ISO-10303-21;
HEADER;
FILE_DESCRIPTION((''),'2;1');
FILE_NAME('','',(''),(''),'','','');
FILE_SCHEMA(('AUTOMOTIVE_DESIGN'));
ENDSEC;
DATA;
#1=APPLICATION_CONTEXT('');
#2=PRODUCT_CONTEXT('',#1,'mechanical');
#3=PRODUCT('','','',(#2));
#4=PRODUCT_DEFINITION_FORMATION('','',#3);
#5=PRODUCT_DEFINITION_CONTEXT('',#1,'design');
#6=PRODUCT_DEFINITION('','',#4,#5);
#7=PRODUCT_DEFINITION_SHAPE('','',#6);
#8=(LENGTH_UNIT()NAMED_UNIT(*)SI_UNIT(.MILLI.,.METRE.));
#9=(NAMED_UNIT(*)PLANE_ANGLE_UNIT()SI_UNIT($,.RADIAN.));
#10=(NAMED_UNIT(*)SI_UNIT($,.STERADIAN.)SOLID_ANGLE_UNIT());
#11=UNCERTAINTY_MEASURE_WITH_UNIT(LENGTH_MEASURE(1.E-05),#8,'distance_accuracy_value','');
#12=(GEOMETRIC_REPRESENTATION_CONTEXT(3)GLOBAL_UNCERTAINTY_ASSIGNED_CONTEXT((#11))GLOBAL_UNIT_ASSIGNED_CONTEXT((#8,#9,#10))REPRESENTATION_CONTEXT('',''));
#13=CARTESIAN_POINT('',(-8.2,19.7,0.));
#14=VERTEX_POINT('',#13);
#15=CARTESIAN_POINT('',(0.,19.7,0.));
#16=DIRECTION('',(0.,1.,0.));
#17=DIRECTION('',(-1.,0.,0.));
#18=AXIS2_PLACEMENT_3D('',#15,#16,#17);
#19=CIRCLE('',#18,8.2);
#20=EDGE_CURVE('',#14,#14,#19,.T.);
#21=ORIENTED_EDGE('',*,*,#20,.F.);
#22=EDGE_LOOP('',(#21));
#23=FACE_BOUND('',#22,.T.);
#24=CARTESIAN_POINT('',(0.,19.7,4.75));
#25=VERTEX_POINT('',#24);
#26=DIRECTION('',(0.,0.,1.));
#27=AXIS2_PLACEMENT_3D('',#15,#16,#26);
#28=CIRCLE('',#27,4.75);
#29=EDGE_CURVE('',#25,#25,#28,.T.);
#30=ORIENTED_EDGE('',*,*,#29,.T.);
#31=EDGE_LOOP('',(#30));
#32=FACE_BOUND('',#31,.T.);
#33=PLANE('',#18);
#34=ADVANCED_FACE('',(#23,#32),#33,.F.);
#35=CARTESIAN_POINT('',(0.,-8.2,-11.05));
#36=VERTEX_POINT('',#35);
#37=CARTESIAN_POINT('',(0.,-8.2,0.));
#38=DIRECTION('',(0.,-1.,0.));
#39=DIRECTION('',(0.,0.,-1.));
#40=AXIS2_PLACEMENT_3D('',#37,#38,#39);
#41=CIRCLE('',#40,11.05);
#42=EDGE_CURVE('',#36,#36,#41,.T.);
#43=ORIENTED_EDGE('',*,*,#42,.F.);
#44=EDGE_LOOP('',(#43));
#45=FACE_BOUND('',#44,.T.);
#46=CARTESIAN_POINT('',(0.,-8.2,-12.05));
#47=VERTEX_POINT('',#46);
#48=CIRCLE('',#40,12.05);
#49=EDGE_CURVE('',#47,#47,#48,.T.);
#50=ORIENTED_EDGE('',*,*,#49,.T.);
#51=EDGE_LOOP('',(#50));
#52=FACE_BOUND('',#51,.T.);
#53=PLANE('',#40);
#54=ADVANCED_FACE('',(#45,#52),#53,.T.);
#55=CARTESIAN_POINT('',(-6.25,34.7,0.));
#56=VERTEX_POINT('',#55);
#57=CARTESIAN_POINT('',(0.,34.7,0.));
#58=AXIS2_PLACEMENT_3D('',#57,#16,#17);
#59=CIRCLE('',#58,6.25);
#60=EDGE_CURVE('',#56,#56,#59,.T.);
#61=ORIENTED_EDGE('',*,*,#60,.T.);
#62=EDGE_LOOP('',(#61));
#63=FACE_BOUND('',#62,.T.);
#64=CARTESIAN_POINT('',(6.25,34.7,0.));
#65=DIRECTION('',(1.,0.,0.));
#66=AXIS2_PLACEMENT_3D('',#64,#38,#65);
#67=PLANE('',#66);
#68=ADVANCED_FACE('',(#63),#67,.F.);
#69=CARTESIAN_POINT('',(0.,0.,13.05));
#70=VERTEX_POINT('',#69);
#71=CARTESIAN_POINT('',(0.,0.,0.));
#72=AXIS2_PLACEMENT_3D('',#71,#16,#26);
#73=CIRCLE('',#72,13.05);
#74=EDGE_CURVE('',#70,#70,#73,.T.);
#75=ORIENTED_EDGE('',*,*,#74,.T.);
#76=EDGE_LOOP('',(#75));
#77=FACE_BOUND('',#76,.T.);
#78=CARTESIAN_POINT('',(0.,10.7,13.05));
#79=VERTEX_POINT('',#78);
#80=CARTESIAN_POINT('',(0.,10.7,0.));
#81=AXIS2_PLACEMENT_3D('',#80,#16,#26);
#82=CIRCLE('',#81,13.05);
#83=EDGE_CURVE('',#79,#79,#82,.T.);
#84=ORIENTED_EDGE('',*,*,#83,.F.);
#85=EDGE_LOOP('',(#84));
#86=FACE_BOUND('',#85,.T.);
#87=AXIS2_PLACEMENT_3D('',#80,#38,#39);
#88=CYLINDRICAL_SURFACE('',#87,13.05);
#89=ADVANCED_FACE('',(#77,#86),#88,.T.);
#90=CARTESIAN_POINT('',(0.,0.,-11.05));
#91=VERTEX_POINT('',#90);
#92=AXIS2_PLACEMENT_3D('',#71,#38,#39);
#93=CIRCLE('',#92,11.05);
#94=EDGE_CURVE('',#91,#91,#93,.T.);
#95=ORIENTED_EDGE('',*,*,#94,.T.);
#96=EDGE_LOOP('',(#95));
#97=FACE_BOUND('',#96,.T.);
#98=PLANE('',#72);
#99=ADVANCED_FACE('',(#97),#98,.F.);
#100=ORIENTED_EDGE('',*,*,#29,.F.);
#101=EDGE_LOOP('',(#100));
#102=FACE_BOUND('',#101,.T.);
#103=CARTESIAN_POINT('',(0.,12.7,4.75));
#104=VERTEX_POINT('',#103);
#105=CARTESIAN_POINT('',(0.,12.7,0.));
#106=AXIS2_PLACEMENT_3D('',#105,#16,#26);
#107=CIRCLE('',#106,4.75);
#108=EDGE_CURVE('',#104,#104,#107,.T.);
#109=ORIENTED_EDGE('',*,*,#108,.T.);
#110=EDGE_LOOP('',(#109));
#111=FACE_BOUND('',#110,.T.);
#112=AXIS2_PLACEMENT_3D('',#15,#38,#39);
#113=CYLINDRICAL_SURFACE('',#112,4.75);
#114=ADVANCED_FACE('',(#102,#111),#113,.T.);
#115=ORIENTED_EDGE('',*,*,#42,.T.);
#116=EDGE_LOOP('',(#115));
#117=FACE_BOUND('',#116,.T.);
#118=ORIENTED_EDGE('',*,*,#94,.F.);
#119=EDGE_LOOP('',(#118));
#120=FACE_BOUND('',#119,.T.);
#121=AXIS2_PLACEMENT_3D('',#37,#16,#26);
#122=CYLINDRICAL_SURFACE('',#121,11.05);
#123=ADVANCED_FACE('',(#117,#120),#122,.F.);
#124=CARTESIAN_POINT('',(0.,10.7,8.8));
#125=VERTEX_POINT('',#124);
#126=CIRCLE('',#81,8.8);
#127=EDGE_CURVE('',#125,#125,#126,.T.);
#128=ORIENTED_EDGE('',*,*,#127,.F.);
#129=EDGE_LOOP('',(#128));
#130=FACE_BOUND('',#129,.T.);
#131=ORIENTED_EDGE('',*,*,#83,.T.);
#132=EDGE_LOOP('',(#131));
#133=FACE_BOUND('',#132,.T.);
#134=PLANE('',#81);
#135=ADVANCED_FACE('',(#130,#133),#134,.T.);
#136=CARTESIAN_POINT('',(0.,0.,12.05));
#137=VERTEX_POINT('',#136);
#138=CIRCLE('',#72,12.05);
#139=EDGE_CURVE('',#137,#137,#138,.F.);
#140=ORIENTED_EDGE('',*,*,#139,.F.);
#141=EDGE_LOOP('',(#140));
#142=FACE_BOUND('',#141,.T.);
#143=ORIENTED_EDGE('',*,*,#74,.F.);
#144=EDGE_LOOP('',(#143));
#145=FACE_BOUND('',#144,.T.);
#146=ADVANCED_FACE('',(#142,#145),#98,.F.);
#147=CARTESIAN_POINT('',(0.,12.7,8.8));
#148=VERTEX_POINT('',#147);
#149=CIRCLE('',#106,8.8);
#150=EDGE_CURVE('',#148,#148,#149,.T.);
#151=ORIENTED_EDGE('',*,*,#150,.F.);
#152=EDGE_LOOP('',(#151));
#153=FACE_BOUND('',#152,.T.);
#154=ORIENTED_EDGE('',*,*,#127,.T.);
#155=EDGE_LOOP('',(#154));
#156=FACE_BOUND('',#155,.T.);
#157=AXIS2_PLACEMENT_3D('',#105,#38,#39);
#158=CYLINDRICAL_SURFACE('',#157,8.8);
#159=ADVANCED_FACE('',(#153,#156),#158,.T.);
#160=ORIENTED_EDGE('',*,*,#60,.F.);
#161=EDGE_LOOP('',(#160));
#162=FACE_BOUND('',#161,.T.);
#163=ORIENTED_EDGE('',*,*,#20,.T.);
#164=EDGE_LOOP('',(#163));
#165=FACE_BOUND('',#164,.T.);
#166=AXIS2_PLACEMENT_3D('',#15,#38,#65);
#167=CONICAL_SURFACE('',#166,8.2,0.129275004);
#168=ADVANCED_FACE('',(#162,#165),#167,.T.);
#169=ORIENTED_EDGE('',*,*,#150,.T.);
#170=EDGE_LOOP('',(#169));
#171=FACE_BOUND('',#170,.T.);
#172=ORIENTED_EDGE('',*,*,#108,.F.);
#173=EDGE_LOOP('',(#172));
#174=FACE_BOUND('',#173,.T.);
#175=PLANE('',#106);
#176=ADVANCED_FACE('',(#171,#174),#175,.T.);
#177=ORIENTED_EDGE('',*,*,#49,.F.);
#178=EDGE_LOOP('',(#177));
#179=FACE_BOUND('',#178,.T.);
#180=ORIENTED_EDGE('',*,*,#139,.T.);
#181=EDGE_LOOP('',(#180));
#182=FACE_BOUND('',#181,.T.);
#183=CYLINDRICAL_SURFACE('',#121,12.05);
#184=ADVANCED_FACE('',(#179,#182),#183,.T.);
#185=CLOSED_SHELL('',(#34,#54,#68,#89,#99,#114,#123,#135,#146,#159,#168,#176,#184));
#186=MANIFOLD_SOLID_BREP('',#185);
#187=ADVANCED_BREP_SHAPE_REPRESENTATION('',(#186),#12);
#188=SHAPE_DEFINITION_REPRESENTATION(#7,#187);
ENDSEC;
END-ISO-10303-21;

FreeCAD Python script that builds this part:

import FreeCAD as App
import Part
import Sketcher

V = App.Vector
Q = App.Units.Quantity

doc = App.newDocument("Part")
params = doc.addObject("Spreadsheet::Sheet", "Params")
for row, (alias, value) in enumerate([
    ("sketch1_diameter", "26.1 mm"),
    ("pad1_length", "10.7 mm"),
    ("sketch2_diameter", "17.6 mm"),
    ("pad2_length", "2 mm"),
    ("sketch3_diameter", "9.5 mm"),
    ("pad3_length", "7 mm"),
    ("sketch4_diameter", "24.1 mm"),
    ("sketch4_diameter2", "22.1 mm"),
    ("pad4_length", "8.2 mm"),
    ("sketch5_height", "15 mm"),
    ("sketch5_width", "8.2 mm"),
    ("sketch5_width2", "6.25 mm"),
    ("revolution_angle", "360 deg"),
], start=1):
    params.set(f"A{row}", alias)
    params.set(f"B{row}", "=" + value)
    params.setAlias(f"B{row}", alias)

body = doc.addObject("PartDesign::Body", "Body")

# Sketch on XZ plane
sketch1 = doc.addObject("Sketcher::SketchObject", "Sketch")
body.addObject(sketch1)
sketch1.AttachmentSupport = (doc.XZ_Plane, [""])
sketch1.MapMode = "FlatFace"
sketch1.addGeometry(Part.Circle(V(0, 0, 0), V(0, 0, 1), 13), False)
sketch1.addConstraint([
    Sketcher.Constraint("Coincident", 0, 3, -1, 1),
    Sketcher.Constraint("Diameter", 0, Q("26.1 mm")),
])
sketch1.setExpression("Constraints[1]", "Params.sketch1_diameter")
pad1 = doc.addObject("PartDesign::Pad", "Pad")
body.addObject(pad1)
pad1.Profile = sketch1
pad1.setExpression("Length", "Params.pad1_length")
pad1.Reversed = True

# Sketch on XZ plane
sketch2 = doc.addObject("Sketcher::SketchObject", "Sketch001")
body.addObject(sketch2)
sketch2.AttachmentSupport = (doc.XZ_Plane, [""])
sketch2.MapMode = "FlatFace"
sketch2.AttachmentOffset = App.Placement(V(0, 0, -10.7), App.Rotation())
sketch2.addGeometry(Part.Circle(V(0, 0, 0), V(0, 0, 1), 9), False)
sketch2.addConstraint([
    Sketcher.Constraint("Coincident", 0, 3, -1, 1),
    Sketcher.Constraint("Diameter", 0, Q("17.6 mm")),
])
sketch2.setExpression("Constraints[1]", "Params.sketch2_diameter")
pad2 = doc.addObject("PartDesign::Pad", "Pad001")
body.addObject(pad2)
pad2.Profile = sketch2
pad2.setExpression("Length", "Params.pad2_length")
pad2.Reversed = True

# Sketch on XZ plane
sketch3 = doc.addObject("Sketcher::SketchObject", "Sketch002")
body.addObject(sketch3)
sketch3.AttachmentSupport = (doc.XZ_Plane, [""])
sketch3.MapMode = "FlatFace"
sketch3.AttachmentOffset = App.Placement(V(0, 0, -12.7), App.Rotation())
sketch3.addGeometry(Part.Circle(V(0, 0, 0), V(0, 0, 1), 4.8), False)
sketch3.addConstraint([
    Sketcher.Constraint("Coincident", 0, 3, -1, 1),
    Sketcher.Constraint("Diameter", 0, Q("9.5 mm")),
])
sketch3.setExpression("Constraints[1]", "Params.sketch3_diameter")
pad3 = doc.addObject("PartDesign::Pad", "Pad002")
body.addObject(pad3)
pad3.Profile = sketch3
pad3.setExpression("Length", "Params.pad3_length")
pad3.Reversed = True

# Sketch on XZ plane
sketch4 = doc.addObject("Sketcher::SketchObject", "Sketch003")
body.addObject(sketch4)
sketch4.AttachmentSupport = (doc.XZ_Plane, [""])
sketch4.MapMode = "FlatFace"
sketch4.addGeometry([
    Part.Circle(V(0, 0, 0), V(0, 0, 1), 12),
    Part.Circle(V(0, 0, 0), V(0, 0, 1), 11),
], False)
sketch4.addConstraint([
    Sketcher.Constraint("Coincident", 0, 3, -1, 1),
    Sketcher.Constraint("Coincident", 1, 3, -1, 1),
    Sketcher.Constraint("Diameter", 0, Q("24.1 mm")),
    Sketcher.Constraint("Diameter", 1, Q("22.1 mm")),
])
sketch4.setExpression("Constraints[2]", "Params.sketch4_diameter")
sketch4.setExpression("Constraints[3]", "Params.sketch4_diameter2")
pad4 = doc.addObject("PartDesign::Pad", "Pad003")
body.addObject(pad4)
pad4.Profile = sketch4
pad4.setExpression("Length", "Params.pad4_length")

# Sketch on XY plane
sketch5 = doc.addObject("Sketcher::SketchObject", "Sketch004")
body.addObject(sketch5)
sketch5.AttachmentSupport = (doc.XY_Plane, [""])
sketch5.MapMode = "FlatFace"
sketch5.addGeometry([
    Part.LineSegment(V(0, 20, 0), V(8, 20, 0)),
    Part.LineSegment(V(8, 20, 0), V(6, 35, 0)),
    Part.LineSegment(V(6, 35, 0), V(0, 35, 0)),
    Part.LineSegment(V(0, 35, 0), V(0, 20, 0)),
], False)
sketch5.addConstraint([
    Sketcher.Constraint("Coincident", 0, 2, 1, 1),
    Sketcher.Constraint("Coincident", 1, 2, 2, 1),
    Sketcher.Constraint("Coincident", 2, 2, 3, 1),
    Sketcher.Constraint("Coincident", 3, 2, 0, 1),
    Sketcher.Constraint("Horizontal", 0),
    Sketcher.Constraint("Horizontal", 2),
    Sketcher.Constraint("Vertical", 3),
    Sketcher.Constraint("PointOnObject", 2, 2, -2),
    Sketcher.Constraint("DistanceY", 3, 2, 3, 1, Q("15 mm")),
    Sketcher.Constraint("DistanceX", 0, 1, 0, 2, Q("8.2 mm")),
    Sketcher.Constraint("DistanceX", 2, 2, 2, 1, Q("6.25 mm")),
    Sketcher.Constraint("DistanceY", -1, 1, 0, 2, Q("19.7 mm")),
])
sketch5.setExpression("Constraints[8]", "Params.sketch5_height")
sketch5.setExpression("Constraints[9]", "Params.sketch5_width")
sketch5.setExpression("Constraints[10]", "Params.sketch5_width2")
revolution = doc.addObject("PartDesign::Revolution", "Revolution")
body.addObject(revolution)
revolution.Profile = sketch5
revolution.ReferenceAxis = (sketch5, ["V_Axis"])
revolution.setExpression("Angle", "Params.revolution_angle")

doc.recompute()
